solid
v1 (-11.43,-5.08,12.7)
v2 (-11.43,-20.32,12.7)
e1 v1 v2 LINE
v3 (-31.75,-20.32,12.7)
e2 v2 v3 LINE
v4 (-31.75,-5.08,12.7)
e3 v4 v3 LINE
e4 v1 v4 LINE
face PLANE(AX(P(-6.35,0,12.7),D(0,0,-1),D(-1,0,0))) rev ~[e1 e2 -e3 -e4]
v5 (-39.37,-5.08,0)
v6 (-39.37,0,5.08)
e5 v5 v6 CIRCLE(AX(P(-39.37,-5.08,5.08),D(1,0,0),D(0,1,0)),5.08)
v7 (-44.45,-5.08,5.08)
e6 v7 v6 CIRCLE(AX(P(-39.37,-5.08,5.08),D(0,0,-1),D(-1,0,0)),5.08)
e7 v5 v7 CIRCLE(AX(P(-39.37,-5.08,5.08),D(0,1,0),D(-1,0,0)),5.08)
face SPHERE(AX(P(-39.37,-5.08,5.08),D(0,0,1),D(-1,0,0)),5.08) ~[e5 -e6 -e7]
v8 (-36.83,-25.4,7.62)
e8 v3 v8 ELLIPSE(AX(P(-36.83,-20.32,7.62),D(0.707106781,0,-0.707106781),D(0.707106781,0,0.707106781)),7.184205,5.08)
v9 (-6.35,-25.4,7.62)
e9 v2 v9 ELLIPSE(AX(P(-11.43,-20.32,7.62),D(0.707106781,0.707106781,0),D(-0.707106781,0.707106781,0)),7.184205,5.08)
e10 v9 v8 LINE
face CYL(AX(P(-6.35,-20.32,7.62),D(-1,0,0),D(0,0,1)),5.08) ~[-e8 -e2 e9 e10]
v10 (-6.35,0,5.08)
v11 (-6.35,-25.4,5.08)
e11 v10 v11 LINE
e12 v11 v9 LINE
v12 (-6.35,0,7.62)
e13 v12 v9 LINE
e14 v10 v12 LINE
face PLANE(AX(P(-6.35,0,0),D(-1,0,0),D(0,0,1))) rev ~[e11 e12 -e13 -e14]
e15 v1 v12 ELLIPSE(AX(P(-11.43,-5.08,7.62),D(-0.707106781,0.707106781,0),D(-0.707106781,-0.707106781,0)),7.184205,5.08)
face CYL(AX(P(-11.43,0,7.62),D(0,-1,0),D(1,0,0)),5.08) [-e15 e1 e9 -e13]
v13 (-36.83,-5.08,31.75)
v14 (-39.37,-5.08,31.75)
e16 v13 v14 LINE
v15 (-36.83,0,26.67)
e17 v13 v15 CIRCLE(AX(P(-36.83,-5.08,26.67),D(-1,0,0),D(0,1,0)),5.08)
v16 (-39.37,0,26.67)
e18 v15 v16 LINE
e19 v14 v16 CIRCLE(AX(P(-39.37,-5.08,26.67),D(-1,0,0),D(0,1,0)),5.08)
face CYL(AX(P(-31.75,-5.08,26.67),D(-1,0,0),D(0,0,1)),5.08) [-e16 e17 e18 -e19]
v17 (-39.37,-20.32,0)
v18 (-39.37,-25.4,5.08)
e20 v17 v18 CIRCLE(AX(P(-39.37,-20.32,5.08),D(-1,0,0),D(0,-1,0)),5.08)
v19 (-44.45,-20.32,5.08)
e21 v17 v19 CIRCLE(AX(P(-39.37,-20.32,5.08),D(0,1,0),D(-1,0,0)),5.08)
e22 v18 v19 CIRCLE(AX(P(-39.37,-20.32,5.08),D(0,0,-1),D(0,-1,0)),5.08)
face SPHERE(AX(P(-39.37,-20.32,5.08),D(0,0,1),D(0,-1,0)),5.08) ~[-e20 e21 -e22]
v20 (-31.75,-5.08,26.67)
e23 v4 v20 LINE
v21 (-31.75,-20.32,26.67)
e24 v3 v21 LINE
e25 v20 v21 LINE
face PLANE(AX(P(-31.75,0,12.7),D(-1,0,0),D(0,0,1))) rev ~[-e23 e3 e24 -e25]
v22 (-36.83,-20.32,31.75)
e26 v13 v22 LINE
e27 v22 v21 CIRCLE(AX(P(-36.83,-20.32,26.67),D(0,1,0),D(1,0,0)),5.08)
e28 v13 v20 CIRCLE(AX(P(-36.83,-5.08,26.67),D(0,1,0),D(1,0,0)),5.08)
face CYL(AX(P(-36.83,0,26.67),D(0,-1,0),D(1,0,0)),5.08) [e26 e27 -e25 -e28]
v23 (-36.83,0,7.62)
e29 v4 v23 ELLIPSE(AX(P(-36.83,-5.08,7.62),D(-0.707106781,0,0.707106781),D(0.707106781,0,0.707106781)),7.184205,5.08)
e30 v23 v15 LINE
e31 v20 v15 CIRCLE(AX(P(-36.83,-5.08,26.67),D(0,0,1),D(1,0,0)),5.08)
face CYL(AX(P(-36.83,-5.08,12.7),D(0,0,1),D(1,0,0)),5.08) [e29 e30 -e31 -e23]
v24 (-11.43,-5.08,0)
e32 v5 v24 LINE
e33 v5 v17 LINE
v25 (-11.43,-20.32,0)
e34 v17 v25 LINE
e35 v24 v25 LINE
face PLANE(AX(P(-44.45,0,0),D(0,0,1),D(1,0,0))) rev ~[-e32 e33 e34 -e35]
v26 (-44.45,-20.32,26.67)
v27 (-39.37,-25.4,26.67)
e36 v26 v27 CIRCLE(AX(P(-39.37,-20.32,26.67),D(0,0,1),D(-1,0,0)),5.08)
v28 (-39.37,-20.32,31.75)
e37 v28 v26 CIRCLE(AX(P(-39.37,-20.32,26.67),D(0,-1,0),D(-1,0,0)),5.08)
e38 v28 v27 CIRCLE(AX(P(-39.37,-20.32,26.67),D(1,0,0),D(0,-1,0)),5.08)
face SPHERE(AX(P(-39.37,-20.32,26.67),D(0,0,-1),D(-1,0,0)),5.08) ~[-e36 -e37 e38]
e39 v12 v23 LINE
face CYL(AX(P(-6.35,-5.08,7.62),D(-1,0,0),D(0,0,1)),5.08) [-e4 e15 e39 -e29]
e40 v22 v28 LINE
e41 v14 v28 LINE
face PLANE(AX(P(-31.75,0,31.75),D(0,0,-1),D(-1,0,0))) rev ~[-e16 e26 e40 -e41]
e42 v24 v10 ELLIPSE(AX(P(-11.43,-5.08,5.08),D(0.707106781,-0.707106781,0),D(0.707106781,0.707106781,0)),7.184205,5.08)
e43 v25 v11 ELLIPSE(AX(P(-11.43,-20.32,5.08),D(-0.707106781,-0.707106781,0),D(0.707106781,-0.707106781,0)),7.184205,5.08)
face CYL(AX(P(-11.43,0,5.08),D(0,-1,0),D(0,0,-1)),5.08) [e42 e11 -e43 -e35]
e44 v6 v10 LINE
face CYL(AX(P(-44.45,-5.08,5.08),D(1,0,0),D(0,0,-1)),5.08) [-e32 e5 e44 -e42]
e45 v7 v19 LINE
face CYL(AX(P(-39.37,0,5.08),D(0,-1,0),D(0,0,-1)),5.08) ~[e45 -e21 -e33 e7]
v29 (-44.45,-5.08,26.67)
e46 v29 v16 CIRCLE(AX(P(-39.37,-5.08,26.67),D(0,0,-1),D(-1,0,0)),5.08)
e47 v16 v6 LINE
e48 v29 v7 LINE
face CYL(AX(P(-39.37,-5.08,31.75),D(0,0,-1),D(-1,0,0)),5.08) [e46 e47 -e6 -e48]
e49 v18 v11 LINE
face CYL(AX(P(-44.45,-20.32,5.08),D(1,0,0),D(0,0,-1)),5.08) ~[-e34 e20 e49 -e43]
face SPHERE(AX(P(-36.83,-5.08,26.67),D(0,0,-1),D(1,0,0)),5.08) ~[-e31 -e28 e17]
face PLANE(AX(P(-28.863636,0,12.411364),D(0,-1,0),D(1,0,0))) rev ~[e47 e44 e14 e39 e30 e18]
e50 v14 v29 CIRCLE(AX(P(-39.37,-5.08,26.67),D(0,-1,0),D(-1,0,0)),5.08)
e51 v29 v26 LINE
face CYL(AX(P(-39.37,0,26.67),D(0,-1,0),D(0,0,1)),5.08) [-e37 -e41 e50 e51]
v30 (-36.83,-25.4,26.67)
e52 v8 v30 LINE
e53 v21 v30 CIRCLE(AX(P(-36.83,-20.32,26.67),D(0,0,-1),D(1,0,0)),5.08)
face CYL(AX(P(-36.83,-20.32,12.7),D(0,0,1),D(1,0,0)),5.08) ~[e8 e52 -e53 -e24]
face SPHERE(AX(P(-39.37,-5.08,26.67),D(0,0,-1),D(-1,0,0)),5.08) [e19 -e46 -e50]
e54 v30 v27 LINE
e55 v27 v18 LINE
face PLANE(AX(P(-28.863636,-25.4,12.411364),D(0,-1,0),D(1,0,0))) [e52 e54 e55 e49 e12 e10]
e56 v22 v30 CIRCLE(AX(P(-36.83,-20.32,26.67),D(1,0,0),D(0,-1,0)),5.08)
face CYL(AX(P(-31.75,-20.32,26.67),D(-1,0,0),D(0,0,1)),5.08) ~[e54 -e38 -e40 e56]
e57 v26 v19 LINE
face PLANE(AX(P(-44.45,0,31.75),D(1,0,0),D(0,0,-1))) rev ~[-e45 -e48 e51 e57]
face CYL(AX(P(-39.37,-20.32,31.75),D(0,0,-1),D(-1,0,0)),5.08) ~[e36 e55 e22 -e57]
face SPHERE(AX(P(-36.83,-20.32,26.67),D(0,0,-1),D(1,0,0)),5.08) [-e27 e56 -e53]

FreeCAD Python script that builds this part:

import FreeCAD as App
import Part
import Sketcher
Q = App.Units.Quantity


def edges_at(feature, points):
    """Names of the edges that pass closest to the given points."""
    edges = feature.Shape.Edges
    near = lambda p: min(range(len(edges)), key=lambda i: edges[i].distToShape(Part.Vertex(*p))[0])
    return sorted({f"Edge{near(p) + 1}" for p in points})


def add_polygon(sketch, points):
    """Adds a closed chain of lines whose ends are joined by coincident constraints."""
    first, n = sketch.GeometryCount, len(points)
    for a, b in zip(points, points[1:] + points[:1]):
        sketch.addGeometry(Part.LineSegment(App.Vector(*a, 0), App.Vector(*b, 0)), False)
    for i in range(n):
        sketch.addConstraint(Sketcher.Constraint("Coincident", first + i, 2, first + (i + 1) % n, 1))

doc = App.newDocument("Part")
params = doc.addObject("Spreadsheet::Sheet", "Params")
for row, (alias, value) in enumerate([
    ("sketch1_width", "1 in"),
    ("sketch1_width2", "1.5 in"),
    ("sketch1_height", "0.75 in"),
    ("pad1_length", "1 in"),
    ("fillet_radius", "0.2 in"),
], start=1):
    params.set(f"A{row}", alias)
    params.set(f"B{row}", "=" + value)
    params.setAlias(f"B{row}", alias)

body = doc.addObject("PartDesign::Body", "Body")

# Sketch on XZ plane
sketch1 = body.newObject("Sketcher::SketchObject", "Sketch")
sketch1.AttachmentSupport = (doc.getObject("XZ_Plane"), [""])
sketch1.MapMode = "FlatFace"
add_polygon(sketch1, [(-44, 0), (-6, 0), (-6, 13), (-32, 13), (-32, 32), (-44, 32)])  # lines 0-5
sketch1.addConstraint([
    Sketcher.Constraint("Horizontal", 0),
    Sketcher.Constraint("Vertical", 1),
    Sketcher.Constraint("Horizontal", 2),
    Sketcher.Constraint("Vertical", 3),
    Sketcher.Constraint("Horizontal", 4),
    Sketcher.Constraint("Vertical", 5),
    Sketcher.Constraint("PointOnObject", 0, 2, -1),
    Sketcher.Constraint("Equal", 4, 1),
    Sketcher.Constraint("DistanceX", 2, 2, 2, 1, Q("1 in")),
    Sketcher.Constraint("DistanceX", 0, 1, 0, 2, Q("1.5 in")),
    Sketcher.Constraint("DistanceY", 3, 1, 3, 2, Q("0.75 in")),
    Sketcher.Constraint("DistanceX", 0, 2, -1, 1, Q("0.25 in")),
])
sketch1.setExpression("Constraints[14]", "Params.sketch1_width")
sketch1.setExpression("Constraints[15]", "Params.sketch1_width2")
sketch1.setExpression("Constraints[16]", "Params.sketch1_height")
pad1 = body.newObject("PartDesign::Pad", "Pad")
pad1.Profile = sketch1
pad1.setExpression("Length", "Params.pad1_length")
doc.recompute()

fillet = body.newObject("PartDesign::Fillet", "Fillet")
fillet.Base = (pad1, edges_at(pad1, [
    (-44.45, -25.4, 15.875),
    (-31.75, -25.4, 22.225),
    (-19.05, -25.4, 12.7),
    (-44.45, 0, 15.875),
    (-31.75, 0, 22.225),
    (-19.05, 0, 12.7),
    (-6.35, -12.7, 12.7),
    (-25.4, -25.4, 0),
    (-44.45, -12.7, 0),
    (-25.4, 0, 0),
    (-6.35, -12.7, 0),
    (-31.75, -12.7, 31.75),
    (-44.45, -12.7, 31.75),
    (-38.1, 0, 31.75),
    (-38.1, -25.4, 31.75),
]))
fillet.setExpression("Radius", "Params.fillet_radius")

doc.recompute()
